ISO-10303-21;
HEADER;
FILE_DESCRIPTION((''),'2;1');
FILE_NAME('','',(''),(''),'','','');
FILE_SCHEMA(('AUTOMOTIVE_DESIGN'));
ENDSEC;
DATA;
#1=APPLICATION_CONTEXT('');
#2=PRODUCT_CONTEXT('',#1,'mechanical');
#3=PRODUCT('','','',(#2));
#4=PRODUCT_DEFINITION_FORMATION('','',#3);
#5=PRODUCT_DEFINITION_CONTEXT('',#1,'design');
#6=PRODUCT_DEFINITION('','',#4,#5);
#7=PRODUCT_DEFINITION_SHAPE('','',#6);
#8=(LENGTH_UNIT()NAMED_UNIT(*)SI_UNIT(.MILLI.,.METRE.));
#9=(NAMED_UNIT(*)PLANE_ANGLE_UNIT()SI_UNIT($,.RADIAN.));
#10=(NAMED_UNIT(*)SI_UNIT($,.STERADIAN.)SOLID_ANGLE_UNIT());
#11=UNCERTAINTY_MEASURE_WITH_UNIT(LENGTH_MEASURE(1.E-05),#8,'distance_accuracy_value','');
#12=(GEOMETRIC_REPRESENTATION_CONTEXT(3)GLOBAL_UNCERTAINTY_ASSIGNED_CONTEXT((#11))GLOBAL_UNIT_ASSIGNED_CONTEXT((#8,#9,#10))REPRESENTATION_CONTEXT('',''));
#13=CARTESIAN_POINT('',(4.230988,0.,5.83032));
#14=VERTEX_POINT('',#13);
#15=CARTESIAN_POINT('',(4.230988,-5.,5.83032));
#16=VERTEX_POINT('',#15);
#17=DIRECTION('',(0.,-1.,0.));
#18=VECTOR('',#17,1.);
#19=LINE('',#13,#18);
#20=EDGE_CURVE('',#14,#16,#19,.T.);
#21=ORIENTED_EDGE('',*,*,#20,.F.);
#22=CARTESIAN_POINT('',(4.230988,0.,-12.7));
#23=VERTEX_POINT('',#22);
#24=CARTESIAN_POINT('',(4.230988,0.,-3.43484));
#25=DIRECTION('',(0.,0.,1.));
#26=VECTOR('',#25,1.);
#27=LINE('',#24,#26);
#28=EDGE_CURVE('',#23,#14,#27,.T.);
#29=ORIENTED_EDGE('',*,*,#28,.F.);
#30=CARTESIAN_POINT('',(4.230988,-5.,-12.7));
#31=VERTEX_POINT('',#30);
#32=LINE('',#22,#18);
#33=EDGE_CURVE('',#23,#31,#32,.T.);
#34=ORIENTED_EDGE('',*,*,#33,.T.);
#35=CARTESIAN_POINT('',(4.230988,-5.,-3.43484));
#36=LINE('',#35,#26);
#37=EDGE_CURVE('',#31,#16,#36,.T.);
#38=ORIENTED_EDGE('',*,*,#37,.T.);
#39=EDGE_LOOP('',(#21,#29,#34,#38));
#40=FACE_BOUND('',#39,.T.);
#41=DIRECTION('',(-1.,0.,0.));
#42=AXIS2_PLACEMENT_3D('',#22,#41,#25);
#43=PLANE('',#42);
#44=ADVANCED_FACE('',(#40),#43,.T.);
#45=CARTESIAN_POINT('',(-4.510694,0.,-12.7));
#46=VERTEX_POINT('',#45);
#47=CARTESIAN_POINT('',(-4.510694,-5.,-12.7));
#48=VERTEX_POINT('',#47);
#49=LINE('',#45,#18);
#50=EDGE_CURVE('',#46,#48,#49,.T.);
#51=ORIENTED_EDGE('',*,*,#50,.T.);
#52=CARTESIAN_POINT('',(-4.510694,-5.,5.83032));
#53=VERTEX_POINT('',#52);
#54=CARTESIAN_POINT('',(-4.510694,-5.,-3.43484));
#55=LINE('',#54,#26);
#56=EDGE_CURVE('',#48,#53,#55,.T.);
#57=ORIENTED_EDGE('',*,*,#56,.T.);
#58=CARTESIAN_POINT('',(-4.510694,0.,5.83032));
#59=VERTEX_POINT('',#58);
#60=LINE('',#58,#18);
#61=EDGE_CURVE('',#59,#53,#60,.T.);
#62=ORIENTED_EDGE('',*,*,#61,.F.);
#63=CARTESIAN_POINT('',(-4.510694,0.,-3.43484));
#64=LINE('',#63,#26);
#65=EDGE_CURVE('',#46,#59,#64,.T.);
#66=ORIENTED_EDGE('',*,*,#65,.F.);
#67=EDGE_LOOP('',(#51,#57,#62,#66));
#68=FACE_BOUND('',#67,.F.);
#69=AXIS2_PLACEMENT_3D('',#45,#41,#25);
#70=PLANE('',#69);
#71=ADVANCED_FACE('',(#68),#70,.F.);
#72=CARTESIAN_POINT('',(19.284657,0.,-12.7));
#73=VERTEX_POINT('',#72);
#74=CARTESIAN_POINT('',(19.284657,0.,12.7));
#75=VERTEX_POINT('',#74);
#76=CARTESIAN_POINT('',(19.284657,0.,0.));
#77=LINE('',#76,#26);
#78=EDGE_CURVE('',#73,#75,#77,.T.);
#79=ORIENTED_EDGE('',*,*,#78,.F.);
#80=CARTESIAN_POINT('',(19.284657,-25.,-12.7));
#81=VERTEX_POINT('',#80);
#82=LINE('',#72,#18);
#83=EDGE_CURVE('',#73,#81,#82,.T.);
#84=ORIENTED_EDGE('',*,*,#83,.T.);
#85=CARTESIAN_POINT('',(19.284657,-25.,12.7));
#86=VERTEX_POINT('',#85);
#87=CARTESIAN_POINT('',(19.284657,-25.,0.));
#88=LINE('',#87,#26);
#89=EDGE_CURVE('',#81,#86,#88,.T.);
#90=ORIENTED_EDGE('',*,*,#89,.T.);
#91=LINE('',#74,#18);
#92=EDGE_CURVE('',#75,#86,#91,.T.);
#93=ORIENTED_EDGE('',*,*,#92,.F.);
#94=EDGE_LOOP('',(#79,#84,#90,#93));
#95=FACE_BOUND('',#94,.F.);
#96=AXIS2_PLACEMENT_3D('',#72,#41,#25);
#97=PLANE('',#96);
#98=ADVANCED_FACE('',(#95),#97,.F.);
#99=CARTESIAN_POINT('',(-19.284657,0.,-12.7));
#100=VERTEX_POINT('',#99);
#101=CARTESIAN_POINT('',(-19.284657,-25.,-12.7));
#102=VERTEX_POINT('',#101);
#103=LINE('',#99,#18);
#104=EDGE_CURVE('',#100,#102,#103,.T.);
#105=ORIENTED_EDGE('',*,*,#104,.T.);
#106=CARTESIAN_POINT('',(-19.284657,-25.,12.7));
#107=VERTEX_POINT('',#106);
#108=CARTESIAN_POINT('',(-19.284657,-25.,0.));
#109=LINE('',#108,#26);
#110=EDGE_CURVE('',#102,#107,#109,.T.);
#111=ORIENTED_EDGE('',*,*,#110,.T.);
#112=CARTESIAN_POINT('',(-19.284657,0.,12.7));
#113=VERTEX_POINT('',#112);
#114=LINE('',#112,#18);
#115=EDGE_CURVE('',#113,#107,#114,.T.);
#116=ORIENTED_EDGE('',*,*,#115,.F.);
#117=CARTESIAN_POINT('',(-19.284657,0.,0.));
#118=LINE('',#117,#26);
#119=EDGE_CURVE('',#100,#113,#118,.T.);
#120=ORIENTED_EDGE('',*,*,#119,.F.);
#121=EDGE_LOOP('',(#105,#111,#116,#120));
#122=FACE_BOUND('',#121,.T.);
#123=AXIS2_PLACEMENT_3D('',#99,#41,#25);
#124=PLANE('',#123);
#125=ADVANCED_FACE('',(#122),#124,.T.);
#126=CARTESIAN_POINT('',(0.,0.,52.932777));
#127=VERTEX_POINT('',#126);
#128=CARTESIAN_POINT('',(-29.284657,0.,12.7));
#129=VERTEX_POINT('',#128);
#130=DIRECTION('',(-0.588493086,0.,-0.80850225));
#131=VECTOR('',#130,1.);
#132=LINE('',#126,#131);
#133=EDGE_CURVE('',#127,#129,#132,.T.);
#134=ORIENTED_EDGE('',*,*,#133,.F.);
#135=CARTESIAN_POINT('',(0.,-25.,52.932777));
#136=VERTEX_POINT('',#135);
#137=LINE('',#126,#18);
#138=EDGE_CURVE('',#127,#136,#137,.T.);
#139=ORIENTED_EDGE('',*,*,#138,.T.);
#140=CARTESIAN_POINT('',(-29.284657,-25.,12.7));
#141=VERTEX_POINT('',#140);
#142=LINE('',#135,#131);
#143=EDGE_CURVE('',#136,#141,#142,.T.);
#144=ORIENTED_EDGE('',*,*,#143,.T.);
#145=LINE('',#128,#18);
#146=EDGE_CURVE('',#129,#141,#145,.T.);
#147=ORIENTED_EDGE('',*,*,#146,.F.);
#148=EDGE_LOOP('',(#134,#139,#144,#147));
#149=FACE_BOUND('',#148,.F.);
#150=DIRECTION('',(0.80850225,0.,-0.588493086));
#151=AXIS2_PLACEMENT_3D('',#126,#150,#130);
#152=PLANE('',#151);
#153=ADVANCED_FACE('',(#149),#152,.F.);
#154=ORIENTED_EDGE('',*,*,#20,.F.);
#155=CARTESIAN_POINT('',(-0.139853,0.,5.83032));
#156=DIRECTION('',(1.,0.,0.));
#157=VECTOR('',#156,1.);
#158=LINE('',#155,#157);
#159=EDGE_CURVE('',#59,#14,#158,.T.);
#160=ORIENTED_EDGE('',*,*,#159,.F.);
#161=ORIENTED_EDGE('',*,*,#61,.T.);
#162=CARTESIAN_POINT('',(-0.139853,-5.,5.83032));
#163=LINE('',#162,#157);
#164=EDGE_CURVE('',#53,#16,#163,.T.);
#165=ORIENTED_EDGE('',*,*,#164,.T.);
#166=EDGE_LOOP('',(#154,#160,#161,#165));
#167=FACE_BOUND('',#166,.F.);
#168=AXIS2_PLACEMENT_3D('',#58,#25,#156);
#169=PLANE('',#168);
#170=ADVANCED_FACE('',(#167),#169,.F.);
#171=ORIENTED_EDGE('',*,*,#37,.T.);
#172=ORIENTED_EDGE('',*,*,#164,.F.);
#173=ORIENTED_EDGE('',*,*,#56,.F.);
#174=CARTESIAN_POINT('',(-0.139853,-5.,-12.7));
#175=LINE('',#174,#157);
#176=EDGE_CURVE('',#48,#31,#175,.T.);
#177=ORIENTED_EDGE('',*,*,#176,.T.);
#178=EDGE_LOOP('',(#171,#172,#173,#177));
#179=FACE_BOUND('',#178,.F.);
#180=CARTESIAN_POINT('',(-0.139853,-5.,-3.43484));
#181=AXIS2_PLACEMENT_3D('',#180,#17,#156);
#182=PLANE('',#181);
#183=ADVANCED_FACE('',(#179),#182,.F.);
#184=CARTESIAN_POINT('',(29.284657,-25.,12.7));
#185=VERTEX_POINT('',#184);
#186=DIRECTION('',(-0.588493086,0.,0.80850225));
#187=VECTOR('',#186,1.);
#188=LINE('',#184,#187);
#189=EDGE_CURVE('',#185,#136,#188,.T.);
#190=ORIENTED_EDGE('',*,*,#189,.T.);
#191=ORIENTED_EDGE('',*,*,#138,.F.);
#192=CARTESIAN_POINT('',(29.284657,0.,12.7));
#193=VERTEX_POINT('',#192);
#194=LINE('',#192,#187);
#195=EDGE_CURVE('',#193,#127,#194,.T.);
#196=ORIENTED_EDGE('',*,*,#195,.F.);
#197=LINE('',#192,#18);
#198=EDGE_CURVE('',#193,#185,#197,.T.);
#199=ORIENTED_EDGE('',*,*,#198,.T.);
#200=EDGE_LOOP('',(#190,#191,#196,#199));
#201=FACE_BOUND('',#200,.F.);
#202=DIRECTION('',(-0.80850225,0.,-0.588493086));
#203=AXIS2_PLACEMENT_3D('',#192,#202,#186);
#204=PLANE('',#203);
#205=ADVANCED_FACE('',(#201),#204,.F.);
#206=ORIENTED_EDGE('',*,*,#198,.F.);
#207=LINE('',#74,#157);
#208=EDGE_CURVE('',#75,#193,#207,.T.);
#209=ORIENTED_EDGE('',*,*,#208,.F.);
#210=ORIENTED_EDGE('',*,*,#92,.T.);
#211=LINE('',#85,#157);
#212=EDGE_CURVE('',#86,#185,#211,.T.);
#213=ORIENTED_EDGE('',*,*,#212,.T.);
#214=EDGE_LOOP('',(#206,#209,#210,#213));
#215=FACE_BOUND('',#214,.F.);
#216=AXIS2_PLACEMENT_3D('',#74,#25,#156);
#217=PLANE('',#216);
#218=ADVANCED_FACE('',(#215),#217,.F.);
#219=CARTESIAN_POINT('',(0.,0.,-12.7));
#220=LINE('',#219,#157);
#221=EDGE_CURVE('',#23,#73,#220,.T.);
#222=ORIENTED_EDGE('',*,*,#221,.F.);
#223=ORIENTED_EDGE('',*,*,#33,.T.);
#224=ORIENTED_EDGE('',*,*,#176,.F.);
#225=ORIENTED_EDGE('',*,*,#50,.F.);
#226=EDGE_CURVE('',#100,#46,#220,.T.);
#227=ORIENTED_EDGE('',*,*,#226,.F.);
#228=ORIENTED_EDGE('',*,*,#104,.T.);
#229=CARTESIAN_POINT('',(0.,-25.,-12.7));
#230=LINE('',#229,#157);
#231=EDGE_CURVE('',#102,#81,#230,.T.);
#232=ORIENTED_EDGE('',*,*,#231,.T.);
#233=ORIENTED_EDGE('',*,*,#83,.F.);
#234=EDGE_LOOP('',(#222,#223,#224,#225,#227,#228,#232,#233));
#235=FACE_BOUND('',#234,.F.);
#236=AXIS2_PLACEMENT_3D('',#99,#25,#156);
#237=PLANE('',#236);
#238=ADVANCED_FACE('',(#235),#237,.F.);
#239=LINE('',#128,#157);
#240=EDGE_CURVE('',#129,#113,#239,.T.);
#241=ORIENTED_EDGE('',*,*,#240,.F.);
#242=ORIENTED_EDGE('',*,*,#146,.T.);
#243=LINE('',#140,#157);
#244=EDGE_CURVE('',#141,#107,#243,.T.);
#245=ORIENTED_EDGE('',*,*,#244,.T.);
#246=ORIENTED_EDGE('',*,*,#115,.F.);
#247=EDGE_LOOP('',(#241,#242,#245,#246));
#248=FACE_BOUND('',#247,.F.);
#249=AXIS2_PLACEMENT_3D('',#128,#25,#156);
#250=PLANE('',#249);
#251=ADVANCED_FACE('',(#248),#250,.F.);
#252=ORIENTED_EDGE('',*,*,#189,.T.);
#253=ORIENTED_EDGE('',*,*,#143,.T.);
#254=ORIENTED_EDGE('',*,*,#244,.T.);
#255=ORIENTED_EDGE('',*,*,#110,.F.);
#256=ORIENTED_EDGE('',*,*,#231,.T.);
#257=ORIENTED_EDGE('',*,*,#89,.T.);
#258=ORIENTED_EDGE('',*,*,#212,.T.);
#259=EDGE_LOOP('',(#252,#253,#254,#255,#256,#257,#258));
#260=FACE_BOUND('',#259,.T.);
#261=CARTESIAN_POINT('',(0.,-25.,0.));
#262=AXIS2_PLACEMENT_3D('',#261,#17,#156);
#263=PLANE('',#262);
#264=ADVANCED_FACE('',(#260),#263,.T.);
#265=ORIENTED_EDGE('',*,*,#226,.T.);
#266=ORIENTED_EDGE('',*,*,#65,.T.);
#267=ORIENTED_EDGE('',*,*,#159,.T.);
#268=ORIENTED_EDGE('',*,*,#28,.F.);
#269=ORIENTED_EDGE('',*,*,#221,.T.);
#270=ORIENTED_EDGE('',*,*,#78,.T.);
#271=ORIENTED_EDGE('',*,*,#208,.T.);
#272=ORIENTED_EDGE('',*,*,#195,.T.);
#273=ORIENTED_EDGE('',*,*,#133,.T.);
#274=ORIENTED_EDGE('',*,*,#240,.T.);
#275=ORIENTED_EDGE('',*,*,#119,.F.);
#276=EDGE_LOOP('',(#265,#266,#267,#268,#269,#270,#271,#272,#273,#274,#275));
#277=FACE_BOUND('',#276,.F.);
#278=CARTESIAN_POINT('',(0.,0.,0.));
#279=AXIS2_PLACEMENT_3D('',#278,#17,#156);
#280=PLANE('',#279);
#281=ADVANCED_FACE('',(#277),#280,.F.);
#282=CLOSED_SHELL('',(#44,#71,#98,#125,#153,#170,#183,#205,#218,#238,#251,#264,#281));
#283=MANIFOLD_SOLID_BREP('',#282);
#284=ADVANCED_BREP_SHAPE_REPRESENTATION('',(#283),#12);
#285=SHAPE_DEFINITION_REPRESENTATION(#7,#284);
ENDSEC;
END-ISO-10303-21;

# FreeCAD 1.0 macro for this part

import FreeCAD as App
import Part
import Sketcher

V = App.Vector
Q = App.Units.Quantity


def add_polygon(sketch, points):
    """Adds a closed chain of lines whose ends are joined by coincident constraints."""
    first, n = sketch.GeometryCount, len(points)
    for a, b in zip(points, points[1:] + points[:1]):
        sketch.addGeometry(Part.LineSegment(App.Vector(*a, 0), App.Vector(*b, 0)), False)
    for i in range(n):
        sketch.addConstraint(Sketcher.Constraint("Coincident", first + i, 2, first + (i + 1) % n, 1))

doc = App.newDocument("Part")
body = doc.addObject("PartDesign::Body", "Body")

sketch1 = doc.addObject("Sketcher::SketchObject", "Sketch")
body.addObject(sketch1)
sketch1.AttachmentSupport = (doc.XZ_Plane, [""])
sketch1.MapMode = "FlatFace"
add_polygon(sketch1, [(-19, 13), (-19, -13), (19, -13), (19, 13), (29, 13), (0, 53), (-29, 13)])
sketch1.addConstraint([
    Sketcher.Constraint("Vertical", 0),
    Sketcher.Constraint("Horizontal", 1),
    Sketcher.Constraint("Vertical", 2),
    Sketcher.Constraint("Horizontal", 3),
    Sketcher.Constraint("Horizontal", 6),
    Sketcher.Constraint("Symmetric", 0, 2, 2, 2, -1, 1),
    Sketcher.Constraint("Symmetric", 3, 2, 5, 2, -2),
    Sketcher.Constraint("PointOnObject", 4, 2, -2),
    Sketcher.Constraint("DistanceX", 3, 1, 3, 2, Q("10 mm")),
    Sketcher.Constraint("DistanceY", 0, 2, 0, 1, Q("25.4 mm")),
    Sketcher.Constraint("Distance", 4, Q("49.762109 mm")),
    Sketcher.Constraint("DistanceX", 1, 1, 1, 2, Q("38.569314 mm")),
])
pad1 = doc.addObject("PartDesign::Pad", "Pad")
body.addObject(pad1)
pad1.Profile = sketch1
pad1.Length = 25

sketch2 = doc.addObject("Sketcher::SketchObject", "Sketch001")
body.addObject(sketch2)
sketch2.AttachmentSupport = (doc.XZ_Plane, [""])
sketch2.MapMode = "FlatFace"
add_polygon(sketch2, [(-5, 6), (-5, -13), (4, -13), (4, 6)])
sketch2.addConstraint([
    Sketcher.Constraint("Vertical", 0),
    Sketcher.Constraint("Horizontal", 1),
    Sketcher.Constraint("Vertical", 2),
    Sketcher.Constraint("Horizontal", 3),
    Sketcher.Constraint("DistanceY", 0, 2, -1, 1, Q("12.7 mm")),
    Sketcher.Constraint("DistanceY", 0, 2, 0, 1, Q("18.53032 mm")),
    Sketcher.Constraint("DistanceX", 1, 1, 1, 2, Q("8.741682 mm")),
    Sketcher.Constraint("DistanceX", 0, 2, -1, 1, Q("4.510694 mm")),
])
pocket1 = doc.addObject("PartDesign::Pocket", "Pocket")
body.addObject(pocket1)
pocket1.Profile = sketch2
pocket1.Length = 5
pocket1.Reversed = True

doc.recompute()
